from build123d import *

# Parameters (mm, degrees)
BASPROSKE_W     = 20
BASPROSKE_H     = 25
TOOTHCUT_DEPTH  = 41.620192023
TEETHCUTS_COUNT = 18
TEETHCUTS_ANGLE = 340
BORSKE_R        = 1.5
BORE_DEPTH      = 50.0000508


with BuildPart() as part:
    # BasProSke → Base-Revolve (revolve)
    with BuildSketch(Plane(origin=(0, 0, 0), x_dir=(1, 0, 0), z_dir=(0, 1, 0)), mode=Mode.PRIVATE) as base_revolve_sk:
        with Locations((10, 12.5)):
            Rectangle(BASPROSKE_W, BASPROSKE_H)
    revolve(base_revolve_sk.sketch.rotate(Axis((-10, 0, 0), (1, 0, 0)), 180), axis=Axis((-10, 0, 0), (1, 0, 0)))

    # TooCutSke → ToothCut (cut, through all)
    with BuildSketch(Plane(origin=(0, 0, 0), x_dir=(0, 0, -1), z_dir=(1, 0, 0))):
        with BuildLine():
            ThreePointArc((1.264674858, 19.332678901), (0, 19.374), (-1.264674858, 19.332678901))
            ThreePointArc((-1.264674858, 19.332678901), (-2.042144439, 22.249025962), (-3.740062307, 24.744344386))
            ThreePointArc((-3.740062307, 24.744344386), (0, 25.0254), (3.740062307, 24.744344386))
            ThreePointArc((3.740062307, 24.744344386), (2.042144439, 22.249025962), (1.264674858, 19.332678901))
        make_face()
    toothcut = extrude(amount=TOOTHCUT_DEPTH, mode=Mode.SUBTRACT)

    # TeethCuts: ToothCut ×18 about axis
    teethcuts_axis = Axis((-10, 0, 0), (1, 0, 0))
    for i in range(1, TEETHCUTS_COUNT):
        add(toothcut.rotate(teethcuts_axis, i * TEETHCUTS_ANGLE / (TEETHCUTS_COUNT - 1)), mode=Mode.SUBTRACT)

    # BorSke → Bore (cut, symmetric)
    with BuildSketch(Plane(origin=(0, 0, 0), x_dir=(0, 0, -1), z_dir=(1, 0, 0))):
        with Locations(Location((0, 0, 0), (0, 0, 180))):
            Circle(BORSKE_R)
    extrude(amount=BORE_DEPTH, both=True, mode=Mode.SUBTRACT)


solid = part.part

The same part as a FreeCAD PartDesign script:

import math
import FreeCAD as App
import Part
import Sketcher

doc = App.newDocument("Part")
body = doc.addObject("PartDesign::Body", "Body")

sketch1 = body.newObject("Sketcher::SketchObject", "Sketch")
sketch1.AttachmentSupport = (doc.getObject("XZ_Plane"), [""])
sketch1.MapMode = "FlatFace"
sketch1.addGeometry(Part.LineSegment(App.Vector(0, -25, 0), App.Vector(0, 0, 0)), False)
sketch1.addGeometry(Part.LineSegment(App.Vector(0, 0, 0), App.Vector(20, 0, 0)), False)
sketch1.addGeometry(Part.LineSegment(App.Vector(20, 0, 0), App.Vector(20, -25, 0)), False)
sketch1.addGeometry(Part.LineSegment(App.Vector(20, -25, 0), App.Vector(0, -25, 0)), False)
sketch1.addConstraint(Sketcher.Constraint("Coincident", 0, 2, 1, 1))
sketch1.addConstraint(Sketcher.Constraint("Coincident", 1, 2, 2, 1))
sketch1.addConstraint(Sketcher.Constraint("Coincident", 2, 2, 3, 1))
sketch1.addConstraint(Sketcher.Constraint("Coincident", 3, 2, 0, 1))
sketch1.addConstraint(Sketcher.Constraint("Vertical", 0))
sketch1.addConstraint(Sketcher.Constraint("Horizontal", 1))
sketch1.addConstraint(Sketcher.Constraint("Vertical", 2))
sketch1.addConstraint(Sketcher.Constraint("Horizontal", 3))
sketch1.addConstraint(Sketcher.Constraint("Coincident", 0, 2, -1, 1))
sketch1.addConstraint(Sketcher.Constraint("DistanceX", 1, 1, 1, 2, 20.0))
sketch1.addConstraint(Sketcher.Constraint("DistanceY", 0, 1, 0, 2, 25.0))
revolution = body.newObject("PartDesign::Revolution", "Revolution")
revolution.Profile = sketch1
revolution.ReferenceAxis = (sketch1, ["H_Axis"])
revolution.Angle = 360

sketch2 = body.newObject("Sketcher::SketchObject", "Sketch001")
sketch2.AttachmentSupport = (doc.getObject("YZ_Plane"), [""])
sketch2.MapMode = "FlatFace"
sketch2.addGeometry(Part.ArcOfCircle(Part.Circle(App.Vector(0, 0, 0), App.Vector(0, 0, 1), 19.4), math.radians(-3.74), math.radians(3.74)), False)
sketch2.addGeometry(Part.ArcOfCircle(Part.Circle(App.Vector(18.5, -10.2, 0), App.Vector(0, 0, 1), 9), math.radians(46), math.radians(85)), False)
sketch2.addGeometry(Part.ArcOfCircle(Part.Circle(App.Vector(0, 0, 0), App.Vector(0, 0, 1), 25), math.radians(-8.6), math.radians(8.6)), False)
sketch2.addGeometry(Part.ArcOfCircle(Part.Circle(App.Vector(18.5, 10.2, 0), App.Vector(0, 0, 1), 9), math.radians(-85), math.radians(-46)), False)
sketch2.addConstraint(Sketcher.Constraint("Coincident", 0, 1, 1, 2))
sketch2.addConstraint(Sketcher.Constraint("Coincident", 1, 1, 2, 1))
sketch2.addConstraint(Sketcher.Constraint("Coincident", 2, 2, 3, 2))
sketch2.addConstraint(Sketcher.Constraint("Coincident", 3, 1, 0, 2))
sketch2.addConstraint(Sketcher.Constraint("Coincident", 0, 3, -1, 1))
sketch2.addConstraint(Sketcher.Constraint("Coincident", 2, 3, -1, 1))
sketch2.addConstraint(Sketcher.Constraint("Equal", 1, 3))
sketch2.addConstraint(Sketcher.Constraint("Symmetric", 1, 3, 3, 3, -1))
sketch2.addConstraint(Sketcher.Constraint("Radius", 1, 9.0))
sketch2.addConstraint(Sketcher.Constraint("Radius", 0, 19.374))
sketch2.addConstraint(Sketcher.Constraint("Radius", 2, 25.0254))
sketch2.addConstraint(Sketcher.Constraint("DistanceX", -1, 1, 0, 1, 19.332679))
sketch2.addConstraint(Sketcher.Constraint("DistanceY", 1, 3, 0, 1, 8.961891))
pocket1 = body.newObject("PartDesign::Pocket", "Pocket")
pocket1.Profile = sketch2
pocket1.Type = "ThroughAll"
pocket1.Reversed = True
doc.recompute()

polarpattern = body.newObject("PartDesign::PolarPattern", "PolarPattern")
polarpattern.Originals = [pocket1]
polarpattern.Axis = (doc.getObject("X_Axis"), [""])
polarpattern.Angle = 360
polarpattern.Occurrences = 18
body.Tip = polarpattern

sketch3 = body.newObject("Sketcher::SketchObject", "Sketch002")
sketch3.AttachmentSupport = (doc.getObject("YZ_Plane"), [""])
sketch3.MapMode = "FlatFace"
sketch3.addGeometry(Part.Circle(App.Vector(0, 0, 0), App.Vector(0, 0, 1), 1.5), False)
sketch3.addConstraint(Sketcher.Constraint("Coincident", 0, 3, -1, 1))
sketch3.addConstraint(Sketcher.Constraint("Diameter", 0, 3.0))
pocket2 = body.newObject("PartDesign::Pocket", "Pocket001")
pocket2.Profile = sketch3
pocket2.Length = 100.000102
pocket2.Midplane = True

doc.recompute()
